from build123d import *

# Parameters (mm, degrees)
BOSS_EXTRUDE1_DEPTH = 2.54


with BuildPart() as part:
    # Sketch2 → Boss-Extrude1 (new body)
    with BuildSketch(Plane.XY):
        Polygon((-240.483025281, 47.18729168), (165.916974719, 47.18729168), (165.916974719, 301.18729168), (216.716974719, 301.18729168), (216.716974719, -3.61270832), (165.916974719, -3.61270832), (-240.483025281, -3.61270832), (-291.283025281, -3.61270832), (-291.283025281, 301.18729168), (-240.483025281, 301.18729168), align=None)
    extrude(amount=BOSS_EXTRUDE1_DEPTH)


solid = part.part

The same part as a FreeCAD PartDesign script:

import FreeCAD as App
import Part
import Sketcher
from FreeCAD import Vector
Q = App.Units.Quantity

doc = App.newDocument("Part")
body = doc.addObject("PartDesign::Body", "Body")

# Sketch on XY plane
sketch1 = body.newObject("Sketcher::SketchObject", "Sketch")
sketch1.AttachmentSupport = (doc.getObject("XY_Plane"), [""])
sketch1.MapMode = "FlatFace"
sketch1.addGeometry([
    Part.LineSegment(Vector(165.916975, 47.187292, 0), Vector(-240.483025, 47.187292, 0)),  # 0
    Part.LineSegment(Vector(-240.483025, 47.187292, 0), Vector(-240.483025, 301.187292, 0)),  # 1
    Part.LineSegment(Vector(-240.483025, 301.187292, 0), Vector(-291.283025, 301.187292, 0)),  # 2
    Part.LineSegment(Vector(-291.283025, 301.187292, 0), Vector(-291.283025, -3.612708, 0)),  # 3
    Part.LineSegment(Vector(-291.283025, -3.612708, 0), Vector(216.716975, -3.612708, 0)),  # 4
    Part.LineSegment(Vector(216.716975, -3.612708, 0), Vector(216.716975, 301.187292, 0)),  # 5
    Part.LineSegment(Vector(216.716975, 301.187292, 0), Vector(165.916975, 301.187292, 0)),  # 6
    Part.LineSegment(Vector(165.916975, 301.187292, 0), Vector(165.916975, 47.187292, 0)),  # 7
], False)
sketch1.addConstraint([
    Sketcher.Constraint("Coincident", 0, 2, 1, 1),
    Sketcher.Constraint("Coincident", 1, 2, 2, 1),
    Sketcher.Constraint("Coincident", 2, 2, 3, 1),
    Sketcher.Constraint("Coincident", 3, 2, 4, 1),
    Sketcher.Constraint("Coincident", 4, 2, 5, 1),
    Sketcher.Constraint("Coincident", 5, 2, 6, 1),
    Sketcher.Constraint("Coincident", 6, 2, 7, 1),
    Sketcher.Constraint("Coincident", 7, 2, 0, 1),
    Sketcher.Constraint("Horizontal", 0),
    Sketcher.Constraint("Vertical", 1),
    Sketcher.Constraint("Horizontal", 2),
    Sketcher.Constraint("Vertical", 3),
    Sketcher.Constraint("Horizontal", 4),
    Sketcher.Constraint("Vertical", 5),
    Sketcher.Constraint("Horizontal", 6),
    Sketcher.Constraint("Vertical", 7),
    Sketcher.Constraint("Horizontal", 2, 2, 5, 2),
    Sketcher.Constraint("Equal", 2, 6),
    Sketcher.Constraint("DistanceX", 0, 2, 0, 1, Q("16 in")),
    Sketcher.Constraint("DistanceX", 2, 2, 2, 1, Q("2 in")),
    Sketcher.Constraint("DistanceY", 1, 1, 1, 2, Q("10 in")),
    Sketcher.Constraint("DistanceY", 3, 2, 3, 1, Q("12 in")),
    Sketcher.Constraint("DistanceY", -1, 1, 0, 2, 47.187292),
    Sketcher.Constraint("DistanceX", 0, 2, -1, 1, 240.483025),
])
pad1 = body.newObject("PartDesign::Pad", "Pad")
pad1.Profile = sketch1
pad1.Length = Q("0.1 in")

doc.recompute()
